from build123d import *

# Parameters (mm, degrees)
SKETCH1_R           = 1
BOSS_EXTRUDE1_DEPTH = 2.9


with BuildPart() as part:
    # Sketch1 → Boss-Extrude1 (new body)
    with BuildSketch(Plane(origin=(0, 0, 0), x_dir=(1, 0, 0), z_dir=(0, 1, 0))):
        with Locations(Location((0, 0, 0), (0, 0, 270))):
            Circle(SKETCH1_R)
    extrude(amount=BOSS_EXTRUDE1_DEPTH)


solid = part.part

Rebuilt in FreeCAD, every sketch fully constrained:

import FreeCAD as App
import Part
import Sketcher
from FreeCAD import Vector

doc = App.newDocument("Part")
body = doc.addObject("PartDesign::Body", "Body")

sketch1 = body.newObject("Sketcher::SketchObject", "Sketch")
sketch1.AttachmentSupport = (doc.getObject("XZ_Plane"), [""])
sketch1.MapMode = "FlatFace"
sketch1.addGeometry(Part.Circle(Vector(0, 0, 0), Vector(0, 0, 1), 1), False)
sketch1.addConstraint([
    Sketcher.Constraint("Coincident", 0, 3, -1, 1),
    Sketcher.Constraint("Diameter", 0, 2.0),
])
pad1 = body.newObject("PartDesign::Pad", "Pad")
pad1.Profile = sketch1
pad1.Length = 2.9
pad1.Reversed = True

doc.recompute()
